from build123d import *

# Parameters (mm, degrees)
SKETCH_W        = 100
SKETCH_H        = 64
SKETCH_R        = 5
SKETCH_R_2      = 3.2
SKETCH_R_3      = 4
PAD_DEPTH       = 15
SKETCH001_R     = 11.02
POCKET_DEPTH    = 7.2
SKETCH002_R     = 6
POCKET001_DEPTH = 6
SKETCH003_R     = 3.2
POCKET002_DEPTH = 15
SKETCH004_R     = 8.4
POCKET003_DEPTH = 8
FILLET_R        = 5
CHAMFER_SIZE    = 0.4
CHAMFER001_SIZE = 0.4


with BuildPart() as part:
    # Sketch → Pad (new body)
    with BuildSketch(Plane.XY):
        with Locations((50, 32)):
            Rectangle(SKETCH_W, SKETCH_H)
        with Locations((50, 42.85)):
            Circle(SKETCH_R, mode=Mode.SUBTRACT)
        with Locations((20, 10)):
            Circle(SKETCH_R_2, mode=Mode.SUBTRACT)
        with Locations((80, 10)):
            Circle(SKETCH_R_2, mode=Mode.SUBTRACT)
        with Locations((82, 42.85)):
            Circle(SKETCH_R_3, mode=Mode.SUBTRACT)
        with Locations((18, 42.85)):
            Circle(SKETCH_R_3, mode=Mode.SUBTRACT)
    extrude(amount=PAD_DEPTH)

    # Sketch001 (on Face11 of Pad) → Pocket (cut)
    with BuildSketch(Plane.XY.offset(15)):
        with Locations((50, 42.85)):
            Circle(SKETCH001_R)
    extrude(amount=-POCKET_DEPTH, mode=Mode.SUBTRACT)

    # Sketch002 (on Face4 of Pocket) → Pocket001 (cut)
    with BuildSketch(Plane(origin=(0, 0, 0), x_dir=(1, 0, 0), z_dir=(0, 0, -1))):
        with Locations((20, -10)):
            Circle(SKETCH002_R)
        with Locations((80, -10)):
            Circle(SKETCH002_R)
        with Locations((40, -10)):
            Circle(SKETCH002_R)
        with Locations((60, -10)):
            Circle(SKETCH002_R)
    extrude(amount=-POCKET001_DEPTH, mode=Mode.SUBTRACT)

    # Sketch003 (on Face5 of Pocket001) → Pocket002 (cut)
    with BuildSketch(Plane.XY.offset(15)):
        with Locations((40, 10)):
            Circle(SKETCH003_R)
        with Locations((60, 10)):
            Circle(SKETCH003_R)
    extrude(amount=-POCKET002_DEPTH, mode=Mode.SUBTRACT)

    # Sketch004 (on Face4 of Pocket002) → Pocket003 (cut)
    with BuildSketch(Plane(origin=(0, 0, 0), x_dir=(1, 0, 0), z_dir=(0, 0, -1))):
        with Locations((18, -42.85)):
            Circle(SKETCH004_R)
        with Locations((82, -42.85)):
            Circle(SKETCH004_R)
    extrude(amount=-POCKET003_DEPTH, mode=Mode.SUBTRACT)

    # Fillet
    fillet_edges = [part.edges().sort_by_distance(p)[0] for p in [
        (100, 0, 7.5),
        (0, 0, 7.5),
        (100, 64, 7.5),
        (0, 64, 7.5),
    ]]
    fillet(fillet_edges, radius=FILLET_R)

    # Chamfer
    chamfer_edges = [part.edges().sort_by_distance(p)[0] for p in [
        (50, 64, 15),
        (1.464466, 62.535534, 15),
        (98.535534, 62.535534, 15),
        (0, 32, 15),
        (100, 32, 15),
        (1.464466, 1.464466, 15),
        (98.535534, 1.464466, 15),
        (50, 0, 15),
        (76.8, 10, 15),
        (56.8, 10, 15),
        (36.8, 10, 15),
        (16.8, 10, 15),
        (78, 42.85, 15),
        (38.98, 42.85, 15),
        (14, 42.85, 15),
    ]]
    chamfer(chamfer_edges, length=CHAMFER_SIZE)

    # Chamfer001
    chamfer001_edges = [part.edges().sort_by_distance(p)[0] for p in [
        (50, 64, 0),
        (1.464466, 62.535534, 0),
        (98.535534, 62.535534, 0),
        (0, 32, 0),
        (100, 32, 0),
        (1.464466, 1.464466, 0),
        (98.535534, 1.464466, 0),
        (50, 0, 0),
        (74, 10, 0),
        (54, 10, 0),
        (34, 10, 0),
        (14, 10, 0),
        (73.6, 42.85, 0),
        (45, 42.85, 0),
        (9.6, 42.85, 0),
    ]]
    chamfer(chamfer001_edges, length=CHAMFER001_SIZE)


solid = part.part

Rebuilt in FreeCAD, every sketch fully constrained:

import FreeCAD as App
import Part
import Sketcher

V = App.Vector
Q = App.Units.Quantity


def edges_at(feature, points):
    """Names of the edges that pass closest to the given points."""
    edges = feature.Shape.Edges
    near = lambda p: min(range(len(edges)), key=lambda i: edges[i].distToShape(Part.Vertex(*p))[0])
    return sorted({f"Edge{near(p) + 1}" for p in points})


def add_polygon(sketch, points):
    """Adds a closed chain of lines whose ends are joined by coincident constraints."""
    first, n = sketch.GeometryCount, len(points)
    for a, b in zip(points, points[1:] + points[:1]):
        sketch.addGeometry(Part.LineSegment(App.Vector(*a, 0), App.Vector(*b, 0)), False)
    for i in range(n):
        sketch.addConstraint(Sketcher.Constraint("Coincident", first + i, 2, first + (i + 1) % n, 1))

doc = App.newDocument("Part")
body = doc.addObject("PartDesign::Body", "Body")

# Sketch on XY plane
sketch1 = body.newObject("Sketcher::SketchObject", "Sketch")
sketch1.AttachmentSupport = (doc.getObject("XY_Plane"), [""])
sketch1.MapMode = "FlatFace"
add_polygon(sketch1, [(0, 64), (0, 0), (100, 0), (100, 64)])  # lines 0-3
sketch1.addGeometry(Part.Circle(V(20, 10, 0), V(0, 0, 1), 3.2), False)  # 4
sketch1.addGeometry(Part.Circle(V(80, 10, 0), V(0, 0, 1), 3.2), False)  # 5
sketch1.addGeometry(Part.Circle(V(18, 42.85, 0), V(0, 0, 1), 4), False)  # 6
sketch1.addGeometry(Part.Circle(V(50, 42.85, 0), V(0, 0, 1), 5), False)  # 7
sketch1.addGeometry(Part.Circle(V(82, 42.85, 0), V(0, 0, 1), 4), False)  # 8
sketch1.addConstraint(Sketcher.Constraint("Vertical", 0))
sketch1.addConstraint(Sketcher.Constraint("Horizontal", 1))
sketch1.addConstraint(Sketcher.Constraint("Vertical", 2))
sketch1.addConstraint(Sketcher.Constraint("Horizontal", 3))
sketch1.addConstraint(Sketcher.Constraint("Coincident", 0, 2, -1, 1))
sketch1.addConstraint(Sketcher.Constraint("Equal", 4, 5))
sketch1.addConstraint(Sketcher.Constraint("Equal", 6, 8))
sketch1.addConstraint(Sketcher.Constraint("Horizontal", 4, 3, 5, 3))
sketch1.addConstraint(Sketcher.Constraint("Horizontal", 6, 3, 7, 3))
sketch1.addConstraint(Sketcher.Constraint("Horizontal", 7, 3, 8, 3))
sketch1.addConstraint(Sketcher.Constraint("Diameter", 6, Q("8 mm")))
sketch1.addConstraint(Sketcher.Constraint("Diameter", 7, Q("10 mm")))
sketch1.addConstraint(Sketcher.Constraint("Diameter", 4, Q("6.4 mm")))
sketch1.addConstraint(Sketcher.Constraint("DistanceX", 1, 1, 1, 2, Q("100 mm")))
sketch1.addConstraint(Sketcher.Constraint("DistanceY", 0, 2, 0, 1, Q("64 mm")))
sketch1.addConstraint(Sketcher.Constraint("DistanceX", -1, 1, 4, 3, Q("20 mm")))
sketch1.addConstraint(Sketcher.Constraint("DistanceY", -1, 1, 4, 3, Q("10 mm")))
sketch1.addConstraint(Sketcher.Constraint("DistanceX", -1, 1, 5, 3, Q("80 mm")))
sketch1.addConstraint(Sketcher.Constraint("DistanceX", -1, 1, 6, 3, Q("18 mm")))
sketch1.addConstraint(Sketcher.Constraint("DistanceX", -1, 1, 7, 3, Q("50 mm")))
sketch1.addConstraint(Sketcher.Constraint("DistanceX", -1, 1, 8, 3, Q("82 mm")))
sketch1.addConstraint(Sketcher.Constraint("DistanceY", -1, 1, 6, 3, Q("42.85 mm")))
pad1 = body.newObject("PartDesign::Pad", "Pad")
pad1.Profile = sketch1
pad1.Length = 15

# Sketch on XY plane
sketch2 = body.newObject("Sketcher::SketchObject", "Sketch001")
sketch2.AttachmentSupport = (doc.getObject("XY_Plane"), [""])
sketch2.MapMode = "FlatFace"
sketch2.AttachmentOffset = App.Placement(V(0, 0, 15), App.Rotation())
sketch2.addGeometry(Part.Circle(V(50, 42.85, 0), V(0, 0, 1), 11.02), False)
sketch2.addConstraint(Sketcher.Constraint("Diameter", 0, Q("22.04 mm")))
sketch2.addConstraint(Sketcher.Constraint("DistanceX", -1, 1, 0, 3, Q("50 mm")))
sketch2.addConstraint(Sketcher.Constraint("DistanceY", -1, 1, 0, 3, Q("42.85 mm")))
pocket1 = body.newObject("PartDesign::Pocket", "Pocket")
pocket1.Profile = sketch2
pocket1.Length = 7.2

# Sketch on XY plane
sketch3 = body.newObject("Sketcher::SketchObject", "Sketch002")
sketch3.AttachmentSupport = (doc.getObject("XY_Plane"), [""])
sketch3.MapMode = "FlatFace"
sketch3.addGeometry(Part.Circle(V(20, 10, 0), V(0, 0, 1), 6), False)
sketch3.addGeometry(Part.Circle(V(80, 10, 0), V(0, 0, 1), 6), False)
sketch3.addGeometry(Part.Circle(V(40, 10, 0), V(0, 0, 1), 6), False)
sketch3.addGeometry(Part.Circle(V(60, 10, 0), V(0, 0, 1), 6), False)
sketch3.addConstraint(Sketcher.Constraint("Equal", 0, 1))
sketch3.addConstraint(Sketcher.Constraint("Equal", 1, 2))
sketch3.addConstraint(Sketcher.Constraint("Equal", 2, 3))
sketch3.addConstraint(Sketcher.Constraint("Horizontal", 0, 3, 1, 3))
sketch3.addConstraint(Sketcher.Constraint("Horizontal", 1, 3, 2, 3))
sketch3.addConstraint(Sketcher.Constraint("Horizontal", 2, 3, 3, 3))
sketch3.addConstraint(Sketcher.Constraint("Diameter", 0, Q("12 mm")))
sketch3.addConstraint(Sketcher.Constraint("DistanceX", -1, 1, 0, 3, Q("20 mm")))
sketch3.addConstraint(Sketcher.Constraint("DistanceY", -1, 1, 0, 3, Q("10 mm")))
sketch3.addConstraint(Sketcher.Constraint("DistanceX", -1, 1, 1, 3, Q("80 mm")))
sketch3.addConstraint(Sketcher.Constraint("DistanceX", -1, 1, 2, 3, Q("40 mm")))
sketch3.addConstraint(Sketcher.Constraint("DistanceX", -1, 1, 3, 3, Q("60 mm")))
pocket2 = body.newObject("PartDesign::Pocket", "Pocket001")
pocket2.Profile = sketch3
pocket2.Length = 6
pocket2.Reversed = True

# Sketch on XY plane
sketch4 = body.newObject("Sketcher::SketchObject", "Sketch003")
sketch4.AttachmentSupport = (doc.getObject("XY_Plane"), [""])
sketch4.MapMode = "FlatFace"
sketch4.AttachmentOffset = App.Placement(V(0, 0, 15), App.Rotation())
sketch4.addGeometry(Part.Circle(V(40, 10, 0), V(0, 0, 1), 3.2), False)
sketch4.addGeometry(Part.Circle(V(60, 10, 0), V(0, 0, 1), 3.2), False)
sketch4.addConstraint(Sketcher.Constraint("Equal", 0, 1))
sketch4.addConstraint(Sketcher.Constraint("Horizontal", 0, 3, 1, 3))
sketch4.addConstraint(Sketcher.Constraint("Diameter", 0, Q("6.4 mm")))
sketch4.addConstraint(Sketcher.Constraint("DistanceX", -1, 1, 0, 3, Q("40 mm")))
sketch4.addConstraint(Sketcher.Constraint("DistanceY", -1, 1, 0, 3, Q("10 mm")))
sketch4.addConstraint(Sketcher.Constraint("DistanceX", -1, 1, 1, 3, Q("60 mm")))
pocket3 = body.newObject("PartDesign::Pocket", "Pocket002")
pocket3.Profile = sketch4
pocket3.Length = 15

# Sketch on XY plane
sketch5 = body.newObject("Sketcher::SketchObject", "Sketch004")
sketch5.AttachmentSupport = (doc.getObject("XY_Plane"), [""])
sketch5.MapMode = "FlatFace"
sketch5.addGeometry(Part.Circle(V(18, 42.85, 0), V(0, 0, 1), 8.4), False)
sketch5.addGeometry(Part.Circle(V(82, 42.85, 0), V(0, 0, 1), 8.4), False)
sketch5.addConstraint(Sketcher.Constraint("Equal", 0, 1))
sketch5.addConstraint(Sketcher.Constraint("Horizontal", 0, 3, 1, 3))
sketch5.addConstraint(Sketcher.Constraint("Diameter", 0, Q("16.8 mm")))
sketch5.addConstraint(Sketcher.Constraint("DistanceX", -1, 1, 0, 3, Q("18 mm")))
sketch5.addConstraint(Sketcher.Constraint("DistanceX", -1, 1, 1, 3, Q("82 mm")))
sketch5.addConstraint(Sketcher.Constraint("DistanceY", -1, 1, 0, 3, Q("42.85 mm")))
pocket4 = body.newObject("PartDesign::Pocket", "Pocket003")
pocket4.Profile = sketch5
pocket4.Length = 8
pocket4.Reversed = True
doc.recompute()

fillet = body.newObject("PartDesign::Fillet", "Fillet")
fillet.Base = (pocket4, edges_at(pocket4, [
    (100, 0, 7.5),
    (0, 0, 7.5),
    (100, 64, 7.5),
    (0, 64, 7.5),
]))
fillet.Radius = 5
doc.recompute()

chamfer = body.newObject("PartDesign::Chamfer", "Chamfer")
chamfer.Base = (fillet, edges_at(fillet, [
    (50, 64, 15),
    (1.464, 62.536, 15),
    (98.536, 62.536, 15),
    (0, 32, 15),
    (100, 32, 15),
    (1.464, 1.464, 15),
    (98.536, 1.464, 15),
    (50, 0, 15),
    (76.8, 10, 15),
    (56.8, 10, 15),
    (36.8, 10, 15),
    (16.8, 10, 15),
    (78, 42.85, 15),
    (38.98, 42.85, 15),
    (14, 42.85, 15),
]))
chamfer.Size = 0.4
doc.recompute()

chamfer2 = body.newObject("PartDesign::Chamfer", "Chamfer001")
chamfer2.Base = (chamfer, edges_at(chamfer, [
    (50, 64, 0),
    (1.464, 62.536, 0),
    (98.536, 62.536, 0),
    (0, 32, 0),
    (100, 32, 0),
    (1.464, 1.464, 0),
    (98.536, 1.464, 0),
    (50, 0, 0),
    (74, 10, 0),
    (54, 10, 0),
    (34, 10, 0),
    (14, 10, 0),
    (73.6, 42.85, 0),
    (45, 42.85, 0),
    (9.6, 42.85, 0),
]))
chamfer2.Size = 0.4

doc.recompute()
